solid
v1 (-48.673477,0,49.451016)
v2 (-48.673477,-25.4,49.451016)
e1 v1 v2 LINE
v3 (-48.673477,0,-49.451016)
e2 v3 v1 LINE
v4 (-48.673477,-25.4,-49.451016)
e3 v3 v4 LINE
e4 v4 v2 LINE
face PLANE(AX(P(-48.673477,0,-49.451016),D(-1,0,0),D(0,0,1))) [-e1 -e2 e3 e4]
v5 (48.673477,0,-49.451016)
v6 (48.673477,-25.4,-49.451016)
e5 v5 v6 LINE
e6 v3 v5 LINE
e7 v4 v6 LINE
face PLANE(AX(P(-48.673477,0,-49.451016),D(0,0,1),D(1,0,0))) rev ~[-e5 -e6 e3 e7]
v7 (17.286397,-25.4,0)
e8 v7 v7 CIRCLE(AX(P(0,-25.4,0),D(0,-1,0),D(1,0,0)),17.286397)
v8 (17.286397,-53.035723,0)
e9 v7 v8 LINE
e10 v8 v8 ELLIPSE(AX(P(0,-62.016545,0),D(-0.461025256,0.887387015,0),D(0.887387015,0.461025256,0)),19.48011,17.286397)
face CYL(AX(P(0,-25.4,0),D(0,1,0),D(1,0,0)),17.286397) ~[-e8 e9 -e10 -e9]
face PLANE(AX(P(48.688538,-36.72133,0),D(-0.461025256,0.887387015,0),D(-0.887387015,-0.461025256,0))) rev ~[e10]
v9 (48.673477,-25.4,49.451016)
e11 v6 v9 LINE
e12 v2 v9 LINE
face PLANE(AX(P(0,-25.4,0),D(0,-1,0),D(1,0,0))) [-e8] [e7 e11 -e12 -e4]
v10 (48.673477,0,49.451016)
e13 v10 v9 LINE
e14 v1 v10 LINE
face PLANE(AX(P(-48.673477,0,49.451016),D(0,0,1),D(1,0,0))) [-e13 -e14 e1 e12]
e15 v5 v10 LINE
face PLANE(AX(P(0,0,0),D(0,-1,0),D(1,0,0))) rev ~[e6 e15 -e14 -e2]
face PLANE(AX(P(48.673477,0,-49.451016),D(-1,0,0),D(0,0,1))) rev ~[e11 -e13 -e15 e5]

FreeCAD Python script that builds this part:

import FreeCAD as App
import Part
import Sketcher
Q = App.Units.Quantity


def add_polygon(sketch, points):
    """Adds a closed chain of lines whose ends are joined by coincident constraints."""
    first, n = sketch.GeometryCount, len(points)
    for a, b in zip(points, points[1:] + points[:1]):
        sketch.addGeometry(Part.LineSegment(App.Vector(*a, 0), App.Vector(*b, 0)), False)
    for i in range(n):
        sketch.addConstraint(Sketcher.Constraint("Coincident", first + i, 2, first + (i + 1) % n, 1))

doc = App.newDocument("Part")
body = doc.addObject("PartDesign::Body", "Body")

# Sketch on XZ plane
sketch1 = doc.addObject("Sketcher::SketchObject", "Sketch")
body.addObject(sketch1)
sketch1.AttachmentSupport = (doc.XZ_Plane, [""])
sketch1.MapMode = "FlatFace"
add_polygon(sketch1, [(-49, 49), (-49, -49), (49, -49), (49, 49)])  # lines 0-3
sketch1.addConstraint([
    Sketcher.Constraint("Vertical", 0),
    Sketcher.Constraint("Horizontal", 1),
    Sketcher.Constraint("Vertical", 2),
    Sketcher.Constraint("Horizontal", 3),
    Sketcher.Constraint("Symmetric", 0, 2, 2, 2, -1, 1),
    Sketcher.Constraint("DistanceX", 1, 1, 1, 2, 97.346954),
    Sketcher.Constraint("DistanceY", 0, 2, 0, 1, 98.902032),
])
pad1 = doc.addObject("PartDesign::Pad", "Pad")
body.addObject(pad1)
pad1.Profile = sketch1
pad1.Length = Q("1 in")

# Sketch on XZ plane
sketch2 = doc.addObject("Sketcher::SketchObject", "Sketch001")
body.addObject(sketch2)
sketch2.AttachmentSupport = (doc.XZ_Plane, [""])
sketch2.MapMode = "FlatFace"
sketch2.AttachmentOffset = App.Placement(App.Vector(0, 0, 1 * 25.4), App.Rotation())
sketch2.addGeometry(Part.Circle(App.Vector(0, 0, 0), App.Vector(0, 0, 1), 17), False)
sketch2.addConstraint([
    Sketcher.Constraint("Coincident", 0, 3, -1, 1),
    Sketcher.Constraint("Diameter", 0, 34.572794),
])
pad2 = doc.addObject("PartDesign::Pad", "Pad001")
body.addObject(pad2)
pad2.Profile = sketch2
pad2.Length = Q("2 in")

# Sketch on XY plane
sketch3 = doc.addObject("Sketcher::SketchObject", "Sketch002")
body.addObject(sketch3)
sketch3.AttachmentSupport = (doc.XY_Plane, [""])
sketch3.MapMode = "FlatFace"
add_polygon(sketch3, [(49, -37), (-35, -80), (49, -80)])  # lines 0-2
sketch3.addConstraint([
    Sketcher.Constraint("Horizontal", 1),
    Sketcher.Constraint("Vertical", 2),
    Sketcher.Constraint("DistanceX", 1, 1, 1, 2, 83.934452),
    Sketcher.Constraint("DistanceY", 2, 1, 2, 2, 43.606568),
    Sketcher.Constraint("DistanceY", 0, 2, -1, 1, 80.327898),
    Sketcher.Constraint("DistanceX", 0, 2, -1, 1, 35.245914),
])
pocket1 = doc.addObject("PartDesign::Pocket", "Pocket")
body.addObject(pocket1)
pocket1.Profile = sketch3
pocket1.Length = Q("2.82 in")
pocket1.Midplane = True

doc.recompute()
